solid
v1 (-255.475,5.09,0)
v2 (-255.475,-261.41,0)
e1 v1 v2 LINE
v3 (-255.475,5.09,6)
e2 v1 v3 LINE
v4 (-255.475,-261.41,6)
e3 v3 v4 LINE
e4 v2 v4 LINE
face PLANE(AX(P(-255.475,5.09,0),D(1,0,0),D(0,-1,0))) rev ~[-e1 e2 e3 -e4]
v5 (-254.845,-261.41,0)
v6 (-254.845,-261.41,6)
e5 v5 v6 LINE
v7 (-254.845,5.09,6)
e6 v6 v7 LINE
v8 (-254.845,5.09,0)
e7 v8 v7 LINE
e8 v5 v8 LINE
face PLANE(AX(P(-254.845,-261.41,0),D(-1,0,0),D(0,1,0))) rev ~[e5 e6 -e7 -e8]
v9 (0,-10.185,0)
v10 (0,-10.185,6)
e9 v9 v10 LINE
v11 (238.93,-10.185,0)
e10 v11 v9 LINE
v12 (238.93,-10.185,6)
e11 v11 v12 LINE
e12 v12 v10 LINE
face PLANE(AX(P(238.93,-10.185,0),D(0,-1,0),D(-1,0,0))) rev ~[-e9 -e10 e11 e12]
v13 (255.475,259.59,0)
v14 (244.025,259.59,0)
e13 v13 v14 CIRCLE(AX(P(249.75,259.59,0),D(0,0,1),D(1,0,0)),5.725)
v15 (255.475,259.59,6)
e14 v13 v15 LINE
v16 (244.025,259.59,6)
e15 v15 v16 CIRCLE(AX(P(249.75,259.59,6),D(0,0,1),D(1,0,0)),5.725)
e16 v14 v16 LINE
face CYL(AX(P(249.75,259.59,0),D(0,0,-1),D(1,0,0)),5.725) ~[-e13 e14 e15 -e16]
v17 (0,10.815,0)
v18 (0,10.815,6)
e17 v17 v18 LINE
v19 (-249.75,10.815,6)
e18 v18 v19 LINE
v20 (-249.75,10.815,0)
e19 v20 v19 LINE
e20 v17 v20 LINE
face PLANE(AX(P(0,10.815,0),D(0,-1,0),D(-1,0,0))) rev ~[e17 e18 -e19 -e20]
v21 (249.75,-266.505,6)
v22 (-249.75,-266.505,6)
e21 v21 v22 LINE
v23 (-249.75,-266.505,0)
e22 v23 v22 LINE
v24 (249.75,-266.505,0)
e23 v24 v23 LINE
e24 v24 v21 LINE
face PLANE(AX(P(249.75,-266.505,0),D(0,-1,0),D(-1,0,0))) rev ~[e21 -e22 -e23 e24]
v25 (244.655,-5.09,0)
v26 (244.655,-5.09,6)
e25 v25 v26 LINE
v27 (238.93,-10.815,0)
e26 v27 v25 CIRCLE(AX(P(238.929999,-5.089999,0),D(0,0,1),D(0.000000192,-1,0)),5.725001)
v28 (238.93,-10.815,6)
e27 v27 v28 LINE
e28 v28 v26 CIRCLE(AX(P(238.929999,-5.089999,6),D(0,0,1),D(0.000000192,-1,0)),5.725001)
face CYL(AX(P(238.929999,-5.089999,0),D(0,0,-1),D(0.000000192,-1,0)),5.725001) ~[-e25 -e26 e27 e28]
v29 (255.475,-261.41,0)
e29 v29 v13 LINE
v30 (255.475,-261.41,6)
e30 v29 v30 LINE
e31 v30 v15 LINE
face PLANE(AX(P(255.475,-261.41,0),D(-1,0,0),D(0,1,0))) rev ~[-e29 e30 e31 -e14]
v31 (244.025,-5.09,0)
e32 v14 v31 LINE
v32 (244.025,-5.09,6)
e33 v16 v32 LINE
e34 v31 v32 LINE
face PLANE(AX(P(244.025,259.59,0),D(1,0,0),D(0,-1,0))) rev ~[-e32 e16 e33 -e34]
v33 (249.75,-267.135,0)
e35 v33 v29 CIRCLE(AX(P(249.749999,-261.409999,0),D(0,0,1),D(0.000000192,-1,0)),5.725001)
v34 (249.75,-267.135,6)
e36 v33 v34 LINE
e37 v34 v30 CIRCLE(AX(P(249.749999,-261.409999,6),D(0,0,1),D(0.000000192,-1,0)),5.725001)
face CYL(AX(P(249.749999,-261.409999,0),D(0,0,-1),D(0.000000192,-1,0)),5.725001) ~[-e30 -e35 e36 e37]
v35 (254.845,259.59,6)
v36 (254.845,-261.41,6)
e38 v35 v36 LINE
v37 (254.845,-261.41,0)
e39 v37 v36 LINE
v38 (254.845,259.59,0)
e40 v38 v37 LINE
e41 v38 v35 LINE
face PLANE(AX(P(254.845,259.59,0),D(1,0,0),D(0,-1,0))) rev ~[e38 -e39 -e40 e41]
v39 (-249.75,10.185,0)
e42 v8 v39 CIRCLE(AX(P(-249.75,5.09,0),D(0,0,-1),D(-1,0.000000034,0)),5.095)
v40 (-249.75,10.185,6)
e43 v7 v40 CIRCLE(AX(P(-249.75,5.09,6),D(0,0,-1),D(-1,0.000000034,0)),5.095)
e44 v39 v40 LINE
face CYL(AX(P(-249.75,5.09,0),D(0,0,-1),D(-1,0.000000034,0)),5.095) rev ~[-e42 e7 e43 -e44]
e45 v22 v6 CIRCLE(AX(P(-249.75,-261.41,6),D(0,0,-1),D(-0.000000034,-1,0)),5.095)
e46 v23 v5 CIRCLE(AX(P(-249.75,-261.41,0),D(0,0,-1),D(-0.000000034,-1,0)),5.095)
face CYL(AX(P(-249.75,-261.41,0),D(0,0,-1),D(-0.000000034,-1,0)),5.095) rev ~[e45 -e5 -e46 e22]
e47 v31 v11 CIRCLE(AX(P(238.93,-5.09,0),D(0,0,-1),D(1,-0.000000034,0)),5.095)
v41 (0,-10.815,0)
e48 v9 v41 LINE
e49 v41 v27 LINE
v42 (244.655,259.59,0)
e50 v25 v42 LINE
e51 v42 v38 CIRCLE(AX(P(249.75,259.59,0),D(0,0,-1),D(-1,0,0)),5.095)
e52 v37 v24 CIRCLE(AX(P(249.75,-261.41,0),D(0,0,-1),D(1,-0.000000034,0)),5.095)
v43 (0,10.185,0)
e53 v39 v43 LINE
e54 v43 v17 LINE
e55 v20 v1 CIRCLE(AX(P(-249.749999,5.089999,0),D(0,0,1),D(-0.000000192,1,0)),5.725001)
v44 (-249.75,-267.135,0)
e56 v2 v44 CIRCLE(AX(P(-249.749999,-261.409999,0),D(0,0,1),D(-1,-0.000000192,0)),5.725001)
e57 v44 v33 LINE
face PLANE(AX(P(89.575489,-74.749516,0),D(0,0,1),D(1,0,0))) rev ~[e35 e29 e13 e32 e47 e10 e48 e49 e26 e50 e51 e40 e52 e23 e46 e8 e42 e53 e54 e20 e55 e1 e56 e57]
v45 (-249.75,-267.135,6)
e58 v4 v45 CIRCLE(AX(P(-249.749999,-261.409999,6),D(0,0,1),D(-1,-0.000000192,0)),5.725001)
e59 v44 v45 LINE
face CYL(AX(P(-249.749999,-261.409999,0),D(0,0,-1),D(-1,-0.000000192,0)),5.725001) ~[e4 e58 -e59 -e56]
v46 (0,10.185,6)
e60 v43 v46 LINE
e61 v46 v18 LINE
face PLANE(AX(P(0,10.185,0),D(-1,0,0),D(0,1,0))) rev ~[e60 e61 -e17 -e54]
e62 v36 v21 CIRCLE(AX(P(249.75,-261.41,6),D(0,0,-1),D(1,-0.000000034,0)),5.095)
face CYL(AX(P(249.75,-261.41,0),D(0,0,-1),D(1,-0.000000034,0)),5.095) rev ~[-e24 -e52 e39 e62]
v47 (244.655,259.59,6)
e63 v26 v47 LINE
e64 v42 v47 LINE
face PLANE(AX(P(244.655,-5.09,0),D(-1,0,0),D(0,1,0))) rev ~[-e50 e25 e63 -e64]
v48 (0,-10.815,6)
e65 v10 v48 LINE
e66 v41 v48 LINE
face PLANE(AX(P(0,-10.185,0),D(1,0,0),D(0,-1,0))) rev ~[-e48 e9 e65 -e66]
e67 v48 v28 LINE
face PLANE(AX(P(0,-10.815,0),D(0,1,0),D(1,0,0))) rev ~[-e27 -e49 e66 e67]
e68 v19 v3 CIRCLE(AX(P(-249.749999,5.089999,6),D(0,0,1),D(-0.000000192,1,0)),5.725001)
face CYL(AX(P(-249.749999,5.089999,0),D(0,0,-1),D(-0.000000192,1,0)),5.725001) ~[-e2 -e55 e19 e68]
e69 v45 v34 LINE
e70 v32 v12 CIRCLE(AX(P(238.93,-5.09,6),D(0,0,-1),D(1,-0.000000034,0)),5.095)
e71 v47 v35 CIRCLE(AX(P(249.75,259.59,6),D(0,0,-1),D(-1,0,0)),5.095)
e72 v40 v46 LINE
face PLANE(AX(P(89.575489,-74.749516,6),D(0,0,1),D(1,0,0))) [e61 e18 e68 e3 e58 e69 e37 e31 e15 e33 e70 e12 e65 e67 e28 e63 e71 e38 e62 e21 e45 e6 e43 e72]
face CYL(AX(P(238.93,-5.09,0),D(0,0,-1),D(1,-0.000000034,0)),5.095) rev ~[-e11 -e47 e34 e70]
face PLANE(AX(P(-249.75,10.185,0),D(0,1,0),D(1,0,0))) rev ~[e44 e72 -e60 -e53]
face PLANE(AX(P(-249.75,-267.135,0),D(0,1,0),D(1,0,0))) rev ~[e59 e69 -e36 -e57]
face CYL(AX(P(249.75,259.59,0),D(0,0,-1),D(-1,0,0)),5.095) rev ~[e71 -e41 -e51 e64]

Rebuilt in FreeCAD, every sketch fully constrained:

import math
import FreeCAD as App
import Part
import Sketcher

V = App.Vector
Q = App.Units.Quantity

doc = App.newDocument("Part")
body = doc.addObject("PartDesign::Body", "Body")

sketch1 = doc.addObject("Sketcher::SketchObject", "Sketch")
body.addObject(sketch1)
sketch1.AttachmentSupport = (doc.XY_Plane, [""])
sketch1.MapMode = "FlatFace"
sketch1.addGeometry([
    Part.ArcOfCircle(Part.Circle(V(249.75, 259.59, 0), V(0, 0, 1), 5.095), math.radians(0), math.radians(180)),
    Part.LineSegment(V(254.845, 259.59, 0), V(254.845, -261.41, 0)),
    Part.ArcOfCircle(Part.Circle(V(249.75, -261.41, 0), V(0, 0, 1), 5.095), math.radians(-89.999998), math.radians(-0.000002)),
    Part.LineSegment(V(249.75, -266.505, 0), V(-249.75, -266.505, 0)),
    Part.ArcOfCircle(Part.Circle(V(-249.75, -261.41, 0), V(0, 0, 1), 5.095), math.radians(-179.999998), math.radians(-90.000002)),
    Part.LineSegment(V(-254.845, -261.41, 0), V(-254.845, 5.09, 0)),
    Part.ArcOfCircle(Part.Circle(V(-249.75, 5.09, 0), V(0, 0, 1), 5.095), math.radians(90.000002), math.radians(179.999998)),
    Part.LineSegment(V(-249.75, 10.185, 0), V(0, 10.185, 0)),
    Part.LineSegment(V(0, 10.185, 0), V(0, 10.815, 0)),
    Part.LineSegment(V(0, 10.815, 0), V(-249.75, 10.815, 0)),
    Part.ArcOfCircle(Part.Circle(V(-249.749999, 5.089999, 0), V(0, 0, 1), 5.725001), math.radians(90.000011), math.radians(179.999989)),
    Part.LineSegment(V(-255.475, 5.09, 0), V(-255.475, -261.41, 0)),
    Part.ArcOfCircle(Part.Circle(V(-249.749999, -261.409999, 0), V(0, 0, 1), 5.725001), math.radians(-179.999989), math.radians(-90.000011)),
    Part.LineSegment(V(-249.75, -267.135, 0), V(249.75, -267.135, 0)),
    Part.ArcOfCircle(Part.Circle(V(249.749999, -261.409999, 0), V(0, 0, 1), 5.725001), math.radians(-89.999989), math.radians(-0.000011)),
    Part.LineSegment(V(255.475, -261.41, 0), V(255.475, 259.59, 0)),
    Part.ArcOfCircle(Part.Circle(V(249.75, 259.59, 0), V(0, 0, 1), 5.725), math.radians(0), math.radians(180)),
    Part.LineSegment(V(244.025, 259.59, 0), V(244.025, -5.09, 0)),
    Part.ArcOfCircle(Part.Circle(V(238.93, -5.09, 0), V(0, 0, 1), 5.095), math.radians(-89.999998), math.radians(-0.000002)),
    Part.LineSegment(V(238.93, -10.185, 0), V(0, -10.185, 0)),
    Part.LineSegment(V(0, -10.185, 0), V(0, -10.815, 0)),
    Part.LineSegment(V(0, -10.815, 0), V(238.93, -10.815, 0)),
    Part.ArcOfCircle(Part.Circle(V(238.929999, -5.089999, 0), V(0, 0, 1), 5.725001), math.radians(-89.999989), math.radians(-0.000011)),
    Part.LineSegment(V(244.655, -5.09, 0), V(244.655, 259.59, 0)),
], False)
sketch1.addConstraint([
    Sketcher.Constraint("Tangent", 0, 1, 1, 1),
    Sketcher.Constraint("Tangent", 1, 2, 2, 2),
    Sketcher.Constraint("Tangent", 2, 1, 3, 1),
    Sketcher.Constraint("Tangent", 3, 2, 4, 2),
    Sketcher.Constraint("Tangent", 4, 1, 5, 1),
    Sketcher.Constraint("Tangent", 5, 2, 6, 2),
    Sketcher.Constraint("Tangent", 6, 1, 7, 1),
    Sketcher.Constraint("Coincident", 7, 2, 8, 1),
    Sketcher.Constraint("Coincident", 8, 2, 9, 1),
    Sketcher.Constraint("Tangent", 9, 2, 10, 1),
    Sketcher.Constraint("Tangent", 10, 2, 11, 1),
    Sketcher.Constraint("Tangent", 11, 2, 12, 1),
    Sketcher.Constraint("Tangent", 12, 2, 13, 1),
    Sketcher.Constraint("Tangent", 13, 2, 14, 1),
    Sketcher.Constraint("Tangent", 14, 2, 15, 1),
    Sketcher.Constraint("Tangent", 15, 2, 16, 1),
    Sketcher.Constraint("Tangent", 16, 2, 17, 1),
    Sketcher.Constraint("Tangent", 17, 2, 18, 2),
    Sketcher.Constraint("Tangent", 18, 1, 19, 1),
    Sketcher.Constraint("Coincident", 19, 2, 20, 1),
    Sketcher.Constraint("Coincident", 20, 2, 21, 1),
    Sketcher.Constraint("Tangent", 21, 2, 22, 1),
    Sketcher.Constraint("Tangent", 22, 2, 23, 1),
    Sketcher.Constraint("Tangent", 23, 2, 0, 2),
    Sketcher.Constraint("Vertical", 1),
    Sketcher.Constraint("Horizontal", 3),
    Sketcher.Constraint("Vertical", 5),
    Sketcher.Constraint("Horizontal", 7),
    Sketcher.Constraint("Vertical", 8),
    Sketcher.Constraint("Horizontal", 9),
    Sketcher.Constraint("Vertical", 11),
    Sketcher.Constraint("Horizontal", 13),
    Sketcher.Constraint("Vertical", 15),
    Sketcher.Constraint("Vertical", 17),
    Sketcher.Constraint("Horizontal", 19),
    Sketcher.Constraint("Vertical", 20),
    Sketcher.Constraint("Horizontal", 21),
    Sketcher.Constraint("Vertical", 23),
    Sketcher.Constraint("Coincident", 10, 3, 6, 3),
    Sketcher.Constraint("Coincident", 12, 3, 4, 3),
    Sketcher.Constraint("Coincident", 14, 3, 2, 3),
    Sketcher.Constraint("Coincident", 16, 3, 0, 3),
    Sketcher.Constraint("Coincident", 22, 3, 18, 3),
    Sketcher.Constraint("Equal", 0, 2),
    Sketcher.Constraint("Equal", 2, 4),
    Sketcher.Constraint("Equal", 4, 6),
    Sketcher.Constraint("Equal", 6, 18),
    Sketcher.Constraint("Symmetric", 7, 2, 19, 2, -1, 1),
    Sketcher.Constraint("PointOnObject", 7, 2, -2),
    Sketcher.Constraint("DistanceY", 1, 2, 1, 1, Q("521 mm")),
    Sketcher.Constraint("DistanceX", 3, 2, 3, 1, Q("499.5 mm")),
    Sketcher.Constraint("DistanceY", 5, 1, 5, 2, Q("266.5 mm")),
    Sketcher.Constraint("Radius", 0, Q("5.095 mm")),
    Sketcher.Constraint("Radius", 10, Q("5.725001 mm")),
    Sketcher.Constraint("DistanceY", 18, 1, 8, 2, Q("21 mm")),
    Sketcher.Constraint("DistanceX", 7, 1, 7, 2, Q("249.75 mm")),
])
pad1 = doc.addObject("PartDesign::Pad", "Pad")
body.addObject(pad1)
pad1.Profile = sketch1
pad1.Length = 6

doc.recompute()
